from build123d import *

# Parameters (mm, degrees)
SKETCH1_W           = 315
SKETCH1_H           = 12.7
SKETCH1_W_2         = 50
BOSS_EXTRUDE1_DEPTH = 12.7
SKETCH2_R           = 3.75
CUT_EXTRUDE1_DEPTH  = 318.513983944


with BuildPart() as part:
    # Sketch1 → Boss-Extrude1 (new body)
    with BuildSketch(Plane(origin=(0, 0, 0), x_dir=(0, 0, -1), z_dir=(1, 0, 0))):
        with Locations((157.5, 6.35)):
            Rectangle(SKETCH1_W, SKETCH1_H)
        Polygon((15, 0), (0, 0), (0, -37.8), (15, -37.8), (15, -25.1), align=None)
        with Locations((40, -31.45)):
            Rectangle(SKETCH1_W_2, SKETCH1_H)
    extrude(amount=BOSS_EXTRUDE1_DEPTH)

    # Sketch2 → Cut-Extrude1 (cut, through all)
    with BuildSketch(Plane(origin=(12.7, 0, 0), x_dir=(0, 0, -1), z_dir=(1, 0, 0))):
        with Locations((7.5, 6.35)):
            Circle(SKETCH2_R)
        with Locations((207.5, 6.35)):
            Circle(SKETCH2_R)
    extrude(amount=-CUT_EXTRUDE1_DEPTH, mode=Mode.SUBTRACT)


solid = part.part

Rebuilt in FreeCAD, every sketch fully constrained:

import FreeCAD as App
import Part
import Sketcher
from FreeCAD import Vector
Q = App.Units.Quantity

doc = App.newDocument("Part")
body = doc.addObject("PartDesign::Body", "Body")

# Sketch on YZ plane
sketch1 = body.newObject("Sketcher::SketchObject", "Sketch")
sketch1.AttachmentSupport = (doc.getObject("YZ_Plane"), [""])
sketch1.MapMode = "FlatFace"
sketch1.addGeometry(Part.LineSegment(Vector(13, 0, 0), Vector(-38, 0, 0)), False)
sketch1.addGeometry(Part.LineSegment(Vector(-38, 0, 0), Vector(-38, -65, 0)), False)
sketch1.addGeometry(Part.LineSegment(Vector(-38, -65, 0), Vector(-25, -65, 0)), False)
sketch1.addGeometry(Part.LineSegment(Vector(-25, -65, 0), Vector(-25, -15, 0)), False)
sketch1.addGeometry(Part.LineSegment(Vector(-25, -15, 0), Vector(0, -15, 0)), False)
sketch1.addGeometry(Part.LineSegment(Vector(0, -15, 0), Vector(0, -315, 0)), False)
sketch1.addGeometry(Part.LineSegment(Vector(0, -315, 0), Vector(13, -315, 0)), False)
sketch1.addGeometry(Part.LineSegment(Vector(13, -315, 0), Vector(13, 0, 0)), False)
sketch1.addConstraint(Sketcher.Constraint("Coincident", 0, 2, 1, 1))
sketch1.addConstraint(Sketcher.Constraint("Coincident", 1, 2, 2, 1))
sketch1.addConstraint(Sketcher.Constraint("Coincident", 2, 2, 3, 1))
sketch1.addConstraint(Sketcher.Constraint("Coincident", 3, 2, 4, 1))
sketch1.addConstraint(Sketcher.Constraint("Coincident", 4, 2, 5, 1))
sketch1.addConstraint(Sketcher.Constraint("Coincident", 5, 2, 6, 1))
sketch1.addConstraint(Sketcher.Constraint("Coincident", 6, 2, 7, 1))
sketch1.addConstraint(Sketcher.Constraint("Coincident", 7, 2, 0, 1))
sketch1.addConstraint(Sketcher.Constraint("Horizontal", 0))
sketch1.addConstraint(Sketcher.Constraint("Vertical", 1))
sketch1.addConstraint(Sketcher.Constraint("Horizontal", 2))
sketch1.addConstraint(Sketcher.Constraint("Vertical", 3))
sketch1.addConstraint(Sketcher.Constraint("Horizontal", 4))
sketch1.addConstraint(Sketcher.Constraint("Vertical", 5))
sketch1.addConstraint(Sketcher.Constraint("Horizontal", 6))
sketch1.addConstraint(Sketcher.Constraint("Vertical", 7))
sketch1.addConstraint(Sketcher.Constraint("PointOnObject", 0, 2, -1))
sketch1.addConstraint(Sketcher.Constraint("PointOnObject", 4, 2, -2))
sketch1.addConstraint(Sketcher.Constraint("Equal", 2, 6))
sketch1.addConstraint(Sketcher.Constraint("DistanceY", 1, 2, 1, 1, Q("65 mm")))
sketch1.addConstraint(Sketcher.Constraint("DistanceY", 3, 1, 3, 2, Q("50 mm")))
sketch1.addConstraint(Sketcher.Constraint("DistanceY", 5, 2, 5, 1, Q("300 mm")))
sketch1.addConstraint(Sketcher.Constraint("DistanceX", 0, 2, 0, 1, Q("50.5 mm")))
sketch1.addConstraint(Sketcher.Constraint("DistanceX", 2, 1, 2, 2, Q("12.7 mm")))
pad1 = body.newObject("PartDesign::Pad", "Pad")
pad1.Profile = sketch1
pad1.Length = 12.7

# Sketch on YZ plane
sketch2 = body.newObject("Sketcher::SketchObject", "Sketch001")
sketch2.AttachmentSupport = (doc.getObject("YZ_Plane"), [""])
sketch2.MapMode = "FlatFace"
sketch2.AttachmentOffset = App.Placement(Vector(0, 0, 12.7), App.Rotation())
sketch2.addGeometry(Part.Circle(Vector(6.3, -7.5, 0), Vector(0, 0, 1), 3.8), False)
sketch2.addGeometry(Part.Circle(Vector(6.3, -207.5, 0), Vector(0, 0, 1), 3.8), False)
sketch2.addConstraint(Sketcher.Constraint("Equal", 0, 1))
sketch2.addConstraint(Sketcher.Constraint("Vertical", 0, 3, 1, 3))
sketch2.addConstraint(Sketcher.Constraint("Diameter", 0, Q("7.5 mm")))
sketch2.addConstraint(Sketcher.Constraint("DistanceY", 1, 3, 0, 3, Q("200 mm")))
sketch2.addConstraint(Sketcher.Constraint("DistanceY", 0, 3, -1, 1, Q("7.5 mm")))
sketch2.addConstraint(Sketcher.Constraint("DistanceX", -1, 1, 0, 3, Q("6.35 mm")))
pocket1 = body.newObject("PartDesign::Pocket", "Pocket")
pocket1.Profile = sketch2
pocket1.Type = "ThroughAll"

doc.recompute()
